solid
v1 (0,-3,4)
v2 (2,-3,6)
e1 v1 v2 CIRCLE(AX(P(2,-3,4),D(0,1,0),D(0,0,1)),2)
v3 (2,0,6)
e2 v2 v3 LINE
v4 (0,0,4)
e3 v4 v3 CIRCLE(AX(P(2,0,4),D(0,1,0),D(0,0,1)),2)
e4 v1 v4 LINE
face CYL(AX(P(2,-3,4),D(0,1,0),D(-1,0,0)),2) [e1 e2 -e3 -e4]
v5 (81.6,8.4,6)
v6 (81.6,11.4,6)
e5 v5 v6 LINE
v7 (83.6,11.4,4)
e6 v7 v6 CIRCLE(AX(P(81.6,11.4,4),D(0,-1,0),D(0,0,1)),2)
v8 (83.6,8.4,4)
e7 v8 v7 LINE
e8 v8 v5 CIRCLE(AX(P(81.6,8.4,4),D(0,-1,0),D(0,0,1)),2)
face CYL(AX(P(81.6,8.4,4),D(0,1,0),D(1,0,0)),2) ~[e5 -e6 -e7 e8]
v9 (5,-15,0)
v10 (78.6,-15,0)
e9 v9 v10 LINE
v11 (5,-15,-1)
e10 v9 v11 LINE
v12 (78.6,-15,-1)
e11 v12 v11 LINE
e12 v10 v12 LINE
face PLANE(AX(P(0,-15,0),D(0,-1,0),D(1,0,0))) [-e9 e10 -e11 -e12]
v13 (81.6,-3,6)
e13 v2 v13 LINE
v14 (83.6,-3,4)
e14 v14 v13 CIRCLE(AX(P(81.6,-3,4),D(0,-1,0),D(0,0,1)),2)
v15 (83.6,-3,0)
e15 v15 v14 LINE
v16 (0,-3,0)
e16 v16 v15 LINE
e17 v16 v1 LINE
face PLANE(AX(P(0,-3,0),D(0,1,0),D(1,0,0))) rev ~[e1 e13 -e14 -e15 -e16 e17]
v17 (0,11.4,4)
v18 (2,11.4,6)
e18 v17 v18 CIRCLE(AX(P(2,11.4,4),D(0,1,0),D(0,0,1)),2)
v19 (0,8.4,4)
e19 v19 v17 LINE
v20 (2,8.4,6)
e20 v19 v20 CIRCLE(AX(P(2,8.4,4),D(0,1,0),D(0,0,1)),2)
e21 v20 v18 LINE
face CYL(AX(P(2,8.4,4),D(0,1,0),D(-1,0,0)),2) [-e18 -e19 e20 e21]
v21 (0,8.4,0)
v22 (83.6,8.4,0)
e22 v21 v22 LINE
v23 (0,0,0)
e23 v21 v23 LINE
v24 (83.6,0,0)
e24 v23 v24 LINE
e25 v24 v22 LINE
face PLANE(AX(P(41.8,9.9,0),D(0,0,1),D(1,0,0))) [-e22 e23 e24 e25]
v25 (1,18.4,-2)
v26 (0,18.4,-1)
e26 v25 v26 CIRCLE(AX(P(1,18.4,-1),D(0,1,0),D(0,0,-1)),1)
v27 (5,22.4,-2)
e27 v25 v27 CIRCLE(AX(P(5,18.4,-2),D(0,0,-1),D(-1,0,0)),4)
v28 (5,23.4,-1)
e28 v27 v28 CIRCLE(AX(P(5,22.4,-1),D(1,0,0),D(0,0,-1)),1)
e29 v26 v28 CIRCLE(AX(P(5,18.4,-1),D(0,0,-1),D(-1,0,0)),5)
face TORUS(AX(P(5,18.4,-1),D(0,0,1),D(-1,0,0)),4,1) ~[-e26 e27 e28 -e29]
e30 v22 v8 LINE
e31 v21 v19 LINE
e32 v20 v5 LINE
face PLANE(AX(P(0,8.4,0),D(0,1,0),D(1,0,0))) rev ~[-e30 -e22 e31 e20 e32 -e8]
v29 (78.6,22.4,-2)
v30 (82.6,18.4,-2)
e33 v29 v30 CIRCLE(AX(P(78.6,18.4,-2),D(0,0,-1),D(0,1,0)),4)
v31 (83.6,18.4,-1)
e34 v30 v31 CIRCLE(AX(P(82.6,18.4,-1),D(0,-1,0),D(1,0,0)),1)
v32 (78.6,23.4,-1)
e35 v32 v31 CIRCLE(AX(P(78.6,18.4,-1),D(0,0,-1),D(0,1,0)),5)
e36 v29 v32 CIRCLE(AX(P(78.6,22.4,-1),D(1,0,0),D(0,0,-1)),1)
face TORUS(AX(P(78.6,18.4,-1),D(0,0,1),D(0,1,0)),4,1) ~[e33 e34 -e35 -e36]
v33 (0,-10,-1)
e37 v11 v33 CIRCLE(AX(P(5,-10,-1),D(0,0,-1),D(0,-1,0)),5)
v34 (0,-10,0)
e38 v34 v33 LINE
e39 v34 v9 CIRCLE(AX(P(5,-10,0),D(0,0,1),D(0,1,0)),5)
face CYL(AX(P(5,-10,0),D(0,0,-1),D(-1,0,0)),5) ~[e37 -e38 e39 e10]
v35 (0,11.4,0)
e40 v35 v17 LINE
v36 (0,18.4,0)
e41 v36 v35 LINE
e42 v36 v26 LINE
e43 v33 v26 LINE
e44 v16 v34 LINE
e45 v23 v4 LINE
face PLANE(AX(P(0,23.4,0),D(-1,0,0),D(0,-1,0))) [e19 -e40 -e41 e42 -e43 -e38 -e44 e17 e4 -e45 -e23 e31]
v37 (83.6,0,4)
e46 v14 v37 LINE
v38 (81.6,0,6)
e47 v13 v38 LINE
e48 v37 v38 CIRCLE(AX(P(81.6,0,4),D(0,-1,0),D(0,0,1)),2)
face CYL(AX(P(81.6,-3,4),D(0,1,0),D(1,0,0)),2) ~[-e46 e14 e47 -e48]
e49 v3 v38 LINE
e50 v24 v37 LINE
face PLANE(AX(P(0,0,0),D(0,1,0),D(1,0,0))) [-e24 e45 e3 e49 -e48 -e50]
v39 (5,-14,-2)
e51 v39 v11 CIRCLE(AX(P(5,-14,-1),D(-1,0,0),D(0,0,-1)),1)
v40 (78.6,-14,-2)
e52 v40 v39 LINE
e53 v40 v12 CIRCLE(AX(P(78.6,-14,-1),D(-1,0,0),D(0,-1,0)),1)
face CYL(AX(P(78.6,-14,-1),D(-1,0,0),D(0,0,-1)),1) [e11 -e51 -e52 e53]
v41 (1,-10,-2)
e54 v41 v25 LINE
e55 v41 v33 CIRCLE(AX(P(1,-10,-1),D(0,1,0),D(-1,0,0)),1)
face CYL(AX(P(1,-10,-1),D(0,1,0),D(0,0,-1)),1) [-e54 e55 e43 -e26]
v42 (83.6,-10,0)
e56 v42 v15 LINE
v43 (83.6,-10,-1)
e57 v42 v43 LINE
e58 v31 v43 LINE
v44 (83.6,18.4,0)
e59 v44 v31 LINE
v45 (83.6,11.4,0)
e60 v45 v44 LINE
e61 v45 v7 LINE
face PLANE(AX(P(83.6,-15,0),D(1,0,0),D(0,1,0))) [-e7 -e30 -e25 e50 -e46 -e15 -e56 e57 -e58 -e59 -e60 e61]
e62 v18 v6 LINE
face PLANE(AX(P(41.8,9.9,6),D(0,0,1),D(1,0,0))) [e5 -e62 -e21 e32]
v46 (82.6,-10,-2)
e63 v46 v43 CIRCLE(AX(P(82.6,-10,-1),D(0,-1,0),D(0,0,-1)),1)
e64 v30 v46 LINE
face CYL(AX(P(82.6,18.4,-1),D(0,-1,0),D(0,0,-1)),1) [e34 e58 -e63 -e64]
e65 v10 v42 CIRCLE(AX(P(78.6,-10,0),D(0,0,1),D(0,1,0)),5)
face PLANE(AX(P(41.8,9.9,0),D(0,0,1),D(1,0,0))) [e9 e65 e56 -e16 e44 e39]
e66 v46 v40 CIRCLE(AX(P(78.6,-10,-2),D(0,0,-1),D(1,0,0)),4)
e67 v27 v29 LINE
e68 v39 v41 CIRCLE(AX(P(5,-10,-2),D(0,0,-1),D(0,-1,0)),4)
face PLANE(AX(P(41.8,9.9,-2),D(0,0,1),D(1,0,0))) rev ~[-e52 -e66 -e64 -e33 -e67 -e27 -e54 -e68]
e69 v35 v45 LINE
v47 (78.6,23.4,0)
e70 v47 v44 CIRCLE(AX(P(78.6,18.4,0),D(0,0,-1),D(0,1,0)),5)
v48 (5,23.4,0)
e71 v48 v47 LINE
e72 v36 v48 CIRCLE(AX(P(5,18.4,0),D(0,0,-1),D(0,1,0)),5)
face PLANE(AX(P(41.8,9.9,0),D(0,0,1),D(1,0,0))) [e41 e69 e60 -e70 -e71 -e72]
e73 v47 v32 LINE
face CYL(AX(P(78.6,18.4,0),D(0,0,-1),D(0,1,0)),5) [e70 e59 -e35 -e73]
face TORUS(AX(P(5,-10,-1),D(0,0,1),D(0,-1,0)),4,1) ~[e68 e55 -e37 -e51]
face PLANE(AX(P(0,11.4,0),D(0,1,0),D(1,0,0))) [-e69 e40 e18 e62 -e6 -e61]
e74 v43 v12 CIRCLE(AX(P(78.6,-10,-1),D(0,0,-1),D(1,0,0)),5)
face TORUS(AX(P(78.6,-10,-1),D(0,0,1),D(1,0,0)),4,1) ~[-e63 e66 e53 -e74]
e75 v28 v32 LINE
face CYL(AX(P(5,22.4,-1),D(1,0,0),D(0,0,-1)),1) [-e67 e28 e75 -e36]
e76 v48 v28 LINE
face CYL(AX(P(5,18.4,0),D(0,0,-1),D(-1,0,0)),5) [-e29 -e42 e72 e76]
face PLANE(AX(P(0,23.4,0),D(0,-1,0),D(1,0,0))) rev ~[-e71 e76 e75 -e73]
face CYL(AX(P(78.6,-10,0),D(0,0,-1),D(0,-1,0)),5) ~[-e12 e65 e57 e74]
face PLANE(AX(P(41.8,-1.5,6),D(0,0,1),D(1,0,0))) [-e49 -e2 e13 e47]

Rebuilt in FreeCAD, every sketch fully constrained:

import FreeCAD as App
import Part
import Sketcher

V = App.Vector
Q = App.Units.Quantity


def edges_at(feature, points):
    """Names of the edges that pass closest to the given points."""
    edges = feature.Shape.Edges
    near = lambda p: min(range(len(edges)), key=lambda i: edges[i].distToShape(Part.Vertex(*p))[0])
    return sorted({f"Edge{near(p) + 1}" for p in points})

doc = App.newDocument("Part")
body = doc.addObject("PartDesign::Body", "Body")

# Sketch on XY plane
sketch1 = body.newObject("Sketcher::SketchObject", "Sketch")
sketch1.AttachmentSupport = (doc.getObject("XY_Plane"), [""])
sketch1.MapMode = "FlatFace"
sketch1.addGeometry(Part.LineSegment(V(83.6, 23.4, 0), V(0, 23.4, 0)), False)
sketch1.addGeometry(Part.LineSegment(V(0, 23.4, 0), V(0, -15, 0)), False)
sketch1.addGeometry(Part.LineSegment(V(0, -15, 0), V(83.6, -15, 0)), False)
sketch1.addGeometry(Part.LineSegment(V(83.6, -15, 0), V(83.6, 23.4, 0)), False)
sketch1.addConstraint(Sketcher.Constraint("Coincident", 0, 2, 1, 1))
sketch1.addConstraint(Sketcher.Constraint("Coincident", 1, 2, 2, 1))
sketch1.addConstraint(Sketcher.Constraint("Coincident", 2, 2, 3, 1))
sketch1.addConstraint(Sketcher.Constraint("Coincident", 3, 2, 0, 1))
sketch1.addConstraint(Sketcher.Constraint("Horizontal", 0))
sketch1.addConstraint(Sketcher.Constraint("Vertical", 1))
sketch1.addConstraint(Sketcher.Constraint("Horizontal", 2))
sketch1.addConstraint(Sketcher.Constraint("Vertical", 3))
sketch1.addConstraint(Sketcher.Constraint("PointOnObject", 0, 2, -2))
sketch1.addConstraint(Sketcher.Constraint("DistanceX", 0, 2, 0, 1, Q("83.6 mm")))
sketch1.addConstraint(Sketcher.Constraint("DistanceY", 1, 2, 1, 1, Q("38.4 mm")))
sketch1.addConstraint(Sketcher.Constraint("DistanceY", 1, 2, -1, 1, Q("15 mm")))
pad1 = body.newObject("PartDesign::Pad", "Pad")
pad1.Profile = sketch1
pad1.Length = 2
pad1.Reversed = True

# Sketch on XY plane
sketch2 = body.newObject("Sketcher::SketchObject", "Sketch001")
sketch2.AttachmentSupport = (doc.getObject("XY_Plane"), [""])
sketch2.MapMode = "FlatFace"
sketch2.addGeometry(Part.LineSegment(V(0, 11.4, 0), V(0, 8.4, 0)), False)
sketch2.addGeometry(Part.LineSegment(V(0, 8.4, 0), V(83.6, 8.4, 0)), False)
sketch2.addGeometry(Part.LineSegment(V(83.6, 8.4, 0), V(83.6, 11.4, 0)), False)
sketch2.addGeometry(Part.LineSegment(V(83.6, 11.4, 0), V(0, 11.4, 0)), False)
sketch2.addGeometry(Part.LineSegment(V(0, 0, 0), V(0, -3, 0)), False)
sketch2.addGeometry(Part.LineSegment(V(0, -3, 0), V(83.6, -3, 0)), False)
sketch2.addGeometry(Part.LineSegment(V(83.6, -3, 0), V(83.6, 0, 0)), False)
sketch2.addGeometry(Part.LineSegment(V(83.6, 0, 0), V(0, 0, 0)), False)
sketch2.addConstraint(Sketcher.Constraint("Coincident", 0, 2, 1, 1))
sketch2.addConstraint(Sketcher.Constraint("Coincident", 1, 2, 2, 1))
sketch2.addConstraint(Sketcher.Constraint("Coincident", 2, 2, 3, 1))
sketch2.addConstraint(Sketcher.Constraint("Coincident", 3, 2, 0, 1))
sketch2.addConstraint(Sketcher.Constraint("Coincident", 4, 2, 5, 1))
sketch2.addConstraint(Sketcher.Constraint("Coincident", 5, 2, 6, 1))
sketch2.addConstraint(Sketcher.Constraint("Coincident", 6, 2, 7, 1))
sketch2.addConstraint(Sketcher.Constraint("Coincident", 7, 2, 4, 1))
sketch2.addConstraint(Sketcher.Constraint("Vertical", 0))
sketch2.addConstraint(Sketcher.Constraint("Horizontal", 1))
sketch2.addConstraint(Sketcher.Constraint("Vertical", 2))
sketch2.addConstraint(Sketcher.Constraint("Horizontal", 3))
sketch2.addConstraint(Sketcher.Constraint("Vertical", 4))
sketch2.addConstraint(Sketcher.Constraint("Horizontal", 5))
sketch2.addConstraint(Sketcher.Constraint("Vertical", 6))
sketch2.addConstraint(Sketcher.Constraint("Horizontal", 7))
sketch2.addConstraint(Sketcher.Constraint("Coincident", 7, 2, -1, 1))
sketch2.addConstraint(Sketcher.Constraint("PointOnObject", 0, 2, -2))
sketch2.addConstraint(Sketcher.Constraint("Vertical", 2, 2, 5, 2))
sketch2.addConstraint(Sketcher.Constraint("Equal", 2, 4))
sketch2.addConstraint(Sketcher.Constraint("DistanceY", 0, 2, 0, 1, Q("3 mm")))
sketch2.addConstraint(Sketcher.Constraint("DistanceX", 1, 1, 1, 2, Q("83.6 mm")))
sketch2.addConstraint(Sketcher.Constraint("DistanceY", -1, 1, 0, 2, Q("8.4 mm")))
pad2 = body.newObject("PartDesign::Pad", "Pad001")
pad2.Profile = sketch2
pad2.Length = 6
doc.recompute()

fillet = body.newObject("PartDesign::Fillet", "Fillet")
fillet.Base = (pad2, edges_at(pad2, [
    (0, 9.9, 6),
    (0, -1.5, 6),
    (83.6, 9.9, 6),
    (83.6, -1.5, 6),
]))
fillet.Radius = 2
doc.recompute()

fillet2 = body.newObject("PartDesign::Fillet", "Fillet001")
fillet2.Base = (fillet, edges_at(fillet, [
    (83.6, -15, -1),
    (83.6, 23.4, -1),
    (0, 23.4, -1),
    (0, -15, -1),
]))
fillet2.Radius = 5
doc.recompute()

fillet3 = body.newObject("PartDesign::Fillet", "Fillet002")
fillet3.Base = (fillet2, edges_at(fillet2, [(41.8, 23.4, -2)]))
fillet3.Radius = 1

doc.recompute()
